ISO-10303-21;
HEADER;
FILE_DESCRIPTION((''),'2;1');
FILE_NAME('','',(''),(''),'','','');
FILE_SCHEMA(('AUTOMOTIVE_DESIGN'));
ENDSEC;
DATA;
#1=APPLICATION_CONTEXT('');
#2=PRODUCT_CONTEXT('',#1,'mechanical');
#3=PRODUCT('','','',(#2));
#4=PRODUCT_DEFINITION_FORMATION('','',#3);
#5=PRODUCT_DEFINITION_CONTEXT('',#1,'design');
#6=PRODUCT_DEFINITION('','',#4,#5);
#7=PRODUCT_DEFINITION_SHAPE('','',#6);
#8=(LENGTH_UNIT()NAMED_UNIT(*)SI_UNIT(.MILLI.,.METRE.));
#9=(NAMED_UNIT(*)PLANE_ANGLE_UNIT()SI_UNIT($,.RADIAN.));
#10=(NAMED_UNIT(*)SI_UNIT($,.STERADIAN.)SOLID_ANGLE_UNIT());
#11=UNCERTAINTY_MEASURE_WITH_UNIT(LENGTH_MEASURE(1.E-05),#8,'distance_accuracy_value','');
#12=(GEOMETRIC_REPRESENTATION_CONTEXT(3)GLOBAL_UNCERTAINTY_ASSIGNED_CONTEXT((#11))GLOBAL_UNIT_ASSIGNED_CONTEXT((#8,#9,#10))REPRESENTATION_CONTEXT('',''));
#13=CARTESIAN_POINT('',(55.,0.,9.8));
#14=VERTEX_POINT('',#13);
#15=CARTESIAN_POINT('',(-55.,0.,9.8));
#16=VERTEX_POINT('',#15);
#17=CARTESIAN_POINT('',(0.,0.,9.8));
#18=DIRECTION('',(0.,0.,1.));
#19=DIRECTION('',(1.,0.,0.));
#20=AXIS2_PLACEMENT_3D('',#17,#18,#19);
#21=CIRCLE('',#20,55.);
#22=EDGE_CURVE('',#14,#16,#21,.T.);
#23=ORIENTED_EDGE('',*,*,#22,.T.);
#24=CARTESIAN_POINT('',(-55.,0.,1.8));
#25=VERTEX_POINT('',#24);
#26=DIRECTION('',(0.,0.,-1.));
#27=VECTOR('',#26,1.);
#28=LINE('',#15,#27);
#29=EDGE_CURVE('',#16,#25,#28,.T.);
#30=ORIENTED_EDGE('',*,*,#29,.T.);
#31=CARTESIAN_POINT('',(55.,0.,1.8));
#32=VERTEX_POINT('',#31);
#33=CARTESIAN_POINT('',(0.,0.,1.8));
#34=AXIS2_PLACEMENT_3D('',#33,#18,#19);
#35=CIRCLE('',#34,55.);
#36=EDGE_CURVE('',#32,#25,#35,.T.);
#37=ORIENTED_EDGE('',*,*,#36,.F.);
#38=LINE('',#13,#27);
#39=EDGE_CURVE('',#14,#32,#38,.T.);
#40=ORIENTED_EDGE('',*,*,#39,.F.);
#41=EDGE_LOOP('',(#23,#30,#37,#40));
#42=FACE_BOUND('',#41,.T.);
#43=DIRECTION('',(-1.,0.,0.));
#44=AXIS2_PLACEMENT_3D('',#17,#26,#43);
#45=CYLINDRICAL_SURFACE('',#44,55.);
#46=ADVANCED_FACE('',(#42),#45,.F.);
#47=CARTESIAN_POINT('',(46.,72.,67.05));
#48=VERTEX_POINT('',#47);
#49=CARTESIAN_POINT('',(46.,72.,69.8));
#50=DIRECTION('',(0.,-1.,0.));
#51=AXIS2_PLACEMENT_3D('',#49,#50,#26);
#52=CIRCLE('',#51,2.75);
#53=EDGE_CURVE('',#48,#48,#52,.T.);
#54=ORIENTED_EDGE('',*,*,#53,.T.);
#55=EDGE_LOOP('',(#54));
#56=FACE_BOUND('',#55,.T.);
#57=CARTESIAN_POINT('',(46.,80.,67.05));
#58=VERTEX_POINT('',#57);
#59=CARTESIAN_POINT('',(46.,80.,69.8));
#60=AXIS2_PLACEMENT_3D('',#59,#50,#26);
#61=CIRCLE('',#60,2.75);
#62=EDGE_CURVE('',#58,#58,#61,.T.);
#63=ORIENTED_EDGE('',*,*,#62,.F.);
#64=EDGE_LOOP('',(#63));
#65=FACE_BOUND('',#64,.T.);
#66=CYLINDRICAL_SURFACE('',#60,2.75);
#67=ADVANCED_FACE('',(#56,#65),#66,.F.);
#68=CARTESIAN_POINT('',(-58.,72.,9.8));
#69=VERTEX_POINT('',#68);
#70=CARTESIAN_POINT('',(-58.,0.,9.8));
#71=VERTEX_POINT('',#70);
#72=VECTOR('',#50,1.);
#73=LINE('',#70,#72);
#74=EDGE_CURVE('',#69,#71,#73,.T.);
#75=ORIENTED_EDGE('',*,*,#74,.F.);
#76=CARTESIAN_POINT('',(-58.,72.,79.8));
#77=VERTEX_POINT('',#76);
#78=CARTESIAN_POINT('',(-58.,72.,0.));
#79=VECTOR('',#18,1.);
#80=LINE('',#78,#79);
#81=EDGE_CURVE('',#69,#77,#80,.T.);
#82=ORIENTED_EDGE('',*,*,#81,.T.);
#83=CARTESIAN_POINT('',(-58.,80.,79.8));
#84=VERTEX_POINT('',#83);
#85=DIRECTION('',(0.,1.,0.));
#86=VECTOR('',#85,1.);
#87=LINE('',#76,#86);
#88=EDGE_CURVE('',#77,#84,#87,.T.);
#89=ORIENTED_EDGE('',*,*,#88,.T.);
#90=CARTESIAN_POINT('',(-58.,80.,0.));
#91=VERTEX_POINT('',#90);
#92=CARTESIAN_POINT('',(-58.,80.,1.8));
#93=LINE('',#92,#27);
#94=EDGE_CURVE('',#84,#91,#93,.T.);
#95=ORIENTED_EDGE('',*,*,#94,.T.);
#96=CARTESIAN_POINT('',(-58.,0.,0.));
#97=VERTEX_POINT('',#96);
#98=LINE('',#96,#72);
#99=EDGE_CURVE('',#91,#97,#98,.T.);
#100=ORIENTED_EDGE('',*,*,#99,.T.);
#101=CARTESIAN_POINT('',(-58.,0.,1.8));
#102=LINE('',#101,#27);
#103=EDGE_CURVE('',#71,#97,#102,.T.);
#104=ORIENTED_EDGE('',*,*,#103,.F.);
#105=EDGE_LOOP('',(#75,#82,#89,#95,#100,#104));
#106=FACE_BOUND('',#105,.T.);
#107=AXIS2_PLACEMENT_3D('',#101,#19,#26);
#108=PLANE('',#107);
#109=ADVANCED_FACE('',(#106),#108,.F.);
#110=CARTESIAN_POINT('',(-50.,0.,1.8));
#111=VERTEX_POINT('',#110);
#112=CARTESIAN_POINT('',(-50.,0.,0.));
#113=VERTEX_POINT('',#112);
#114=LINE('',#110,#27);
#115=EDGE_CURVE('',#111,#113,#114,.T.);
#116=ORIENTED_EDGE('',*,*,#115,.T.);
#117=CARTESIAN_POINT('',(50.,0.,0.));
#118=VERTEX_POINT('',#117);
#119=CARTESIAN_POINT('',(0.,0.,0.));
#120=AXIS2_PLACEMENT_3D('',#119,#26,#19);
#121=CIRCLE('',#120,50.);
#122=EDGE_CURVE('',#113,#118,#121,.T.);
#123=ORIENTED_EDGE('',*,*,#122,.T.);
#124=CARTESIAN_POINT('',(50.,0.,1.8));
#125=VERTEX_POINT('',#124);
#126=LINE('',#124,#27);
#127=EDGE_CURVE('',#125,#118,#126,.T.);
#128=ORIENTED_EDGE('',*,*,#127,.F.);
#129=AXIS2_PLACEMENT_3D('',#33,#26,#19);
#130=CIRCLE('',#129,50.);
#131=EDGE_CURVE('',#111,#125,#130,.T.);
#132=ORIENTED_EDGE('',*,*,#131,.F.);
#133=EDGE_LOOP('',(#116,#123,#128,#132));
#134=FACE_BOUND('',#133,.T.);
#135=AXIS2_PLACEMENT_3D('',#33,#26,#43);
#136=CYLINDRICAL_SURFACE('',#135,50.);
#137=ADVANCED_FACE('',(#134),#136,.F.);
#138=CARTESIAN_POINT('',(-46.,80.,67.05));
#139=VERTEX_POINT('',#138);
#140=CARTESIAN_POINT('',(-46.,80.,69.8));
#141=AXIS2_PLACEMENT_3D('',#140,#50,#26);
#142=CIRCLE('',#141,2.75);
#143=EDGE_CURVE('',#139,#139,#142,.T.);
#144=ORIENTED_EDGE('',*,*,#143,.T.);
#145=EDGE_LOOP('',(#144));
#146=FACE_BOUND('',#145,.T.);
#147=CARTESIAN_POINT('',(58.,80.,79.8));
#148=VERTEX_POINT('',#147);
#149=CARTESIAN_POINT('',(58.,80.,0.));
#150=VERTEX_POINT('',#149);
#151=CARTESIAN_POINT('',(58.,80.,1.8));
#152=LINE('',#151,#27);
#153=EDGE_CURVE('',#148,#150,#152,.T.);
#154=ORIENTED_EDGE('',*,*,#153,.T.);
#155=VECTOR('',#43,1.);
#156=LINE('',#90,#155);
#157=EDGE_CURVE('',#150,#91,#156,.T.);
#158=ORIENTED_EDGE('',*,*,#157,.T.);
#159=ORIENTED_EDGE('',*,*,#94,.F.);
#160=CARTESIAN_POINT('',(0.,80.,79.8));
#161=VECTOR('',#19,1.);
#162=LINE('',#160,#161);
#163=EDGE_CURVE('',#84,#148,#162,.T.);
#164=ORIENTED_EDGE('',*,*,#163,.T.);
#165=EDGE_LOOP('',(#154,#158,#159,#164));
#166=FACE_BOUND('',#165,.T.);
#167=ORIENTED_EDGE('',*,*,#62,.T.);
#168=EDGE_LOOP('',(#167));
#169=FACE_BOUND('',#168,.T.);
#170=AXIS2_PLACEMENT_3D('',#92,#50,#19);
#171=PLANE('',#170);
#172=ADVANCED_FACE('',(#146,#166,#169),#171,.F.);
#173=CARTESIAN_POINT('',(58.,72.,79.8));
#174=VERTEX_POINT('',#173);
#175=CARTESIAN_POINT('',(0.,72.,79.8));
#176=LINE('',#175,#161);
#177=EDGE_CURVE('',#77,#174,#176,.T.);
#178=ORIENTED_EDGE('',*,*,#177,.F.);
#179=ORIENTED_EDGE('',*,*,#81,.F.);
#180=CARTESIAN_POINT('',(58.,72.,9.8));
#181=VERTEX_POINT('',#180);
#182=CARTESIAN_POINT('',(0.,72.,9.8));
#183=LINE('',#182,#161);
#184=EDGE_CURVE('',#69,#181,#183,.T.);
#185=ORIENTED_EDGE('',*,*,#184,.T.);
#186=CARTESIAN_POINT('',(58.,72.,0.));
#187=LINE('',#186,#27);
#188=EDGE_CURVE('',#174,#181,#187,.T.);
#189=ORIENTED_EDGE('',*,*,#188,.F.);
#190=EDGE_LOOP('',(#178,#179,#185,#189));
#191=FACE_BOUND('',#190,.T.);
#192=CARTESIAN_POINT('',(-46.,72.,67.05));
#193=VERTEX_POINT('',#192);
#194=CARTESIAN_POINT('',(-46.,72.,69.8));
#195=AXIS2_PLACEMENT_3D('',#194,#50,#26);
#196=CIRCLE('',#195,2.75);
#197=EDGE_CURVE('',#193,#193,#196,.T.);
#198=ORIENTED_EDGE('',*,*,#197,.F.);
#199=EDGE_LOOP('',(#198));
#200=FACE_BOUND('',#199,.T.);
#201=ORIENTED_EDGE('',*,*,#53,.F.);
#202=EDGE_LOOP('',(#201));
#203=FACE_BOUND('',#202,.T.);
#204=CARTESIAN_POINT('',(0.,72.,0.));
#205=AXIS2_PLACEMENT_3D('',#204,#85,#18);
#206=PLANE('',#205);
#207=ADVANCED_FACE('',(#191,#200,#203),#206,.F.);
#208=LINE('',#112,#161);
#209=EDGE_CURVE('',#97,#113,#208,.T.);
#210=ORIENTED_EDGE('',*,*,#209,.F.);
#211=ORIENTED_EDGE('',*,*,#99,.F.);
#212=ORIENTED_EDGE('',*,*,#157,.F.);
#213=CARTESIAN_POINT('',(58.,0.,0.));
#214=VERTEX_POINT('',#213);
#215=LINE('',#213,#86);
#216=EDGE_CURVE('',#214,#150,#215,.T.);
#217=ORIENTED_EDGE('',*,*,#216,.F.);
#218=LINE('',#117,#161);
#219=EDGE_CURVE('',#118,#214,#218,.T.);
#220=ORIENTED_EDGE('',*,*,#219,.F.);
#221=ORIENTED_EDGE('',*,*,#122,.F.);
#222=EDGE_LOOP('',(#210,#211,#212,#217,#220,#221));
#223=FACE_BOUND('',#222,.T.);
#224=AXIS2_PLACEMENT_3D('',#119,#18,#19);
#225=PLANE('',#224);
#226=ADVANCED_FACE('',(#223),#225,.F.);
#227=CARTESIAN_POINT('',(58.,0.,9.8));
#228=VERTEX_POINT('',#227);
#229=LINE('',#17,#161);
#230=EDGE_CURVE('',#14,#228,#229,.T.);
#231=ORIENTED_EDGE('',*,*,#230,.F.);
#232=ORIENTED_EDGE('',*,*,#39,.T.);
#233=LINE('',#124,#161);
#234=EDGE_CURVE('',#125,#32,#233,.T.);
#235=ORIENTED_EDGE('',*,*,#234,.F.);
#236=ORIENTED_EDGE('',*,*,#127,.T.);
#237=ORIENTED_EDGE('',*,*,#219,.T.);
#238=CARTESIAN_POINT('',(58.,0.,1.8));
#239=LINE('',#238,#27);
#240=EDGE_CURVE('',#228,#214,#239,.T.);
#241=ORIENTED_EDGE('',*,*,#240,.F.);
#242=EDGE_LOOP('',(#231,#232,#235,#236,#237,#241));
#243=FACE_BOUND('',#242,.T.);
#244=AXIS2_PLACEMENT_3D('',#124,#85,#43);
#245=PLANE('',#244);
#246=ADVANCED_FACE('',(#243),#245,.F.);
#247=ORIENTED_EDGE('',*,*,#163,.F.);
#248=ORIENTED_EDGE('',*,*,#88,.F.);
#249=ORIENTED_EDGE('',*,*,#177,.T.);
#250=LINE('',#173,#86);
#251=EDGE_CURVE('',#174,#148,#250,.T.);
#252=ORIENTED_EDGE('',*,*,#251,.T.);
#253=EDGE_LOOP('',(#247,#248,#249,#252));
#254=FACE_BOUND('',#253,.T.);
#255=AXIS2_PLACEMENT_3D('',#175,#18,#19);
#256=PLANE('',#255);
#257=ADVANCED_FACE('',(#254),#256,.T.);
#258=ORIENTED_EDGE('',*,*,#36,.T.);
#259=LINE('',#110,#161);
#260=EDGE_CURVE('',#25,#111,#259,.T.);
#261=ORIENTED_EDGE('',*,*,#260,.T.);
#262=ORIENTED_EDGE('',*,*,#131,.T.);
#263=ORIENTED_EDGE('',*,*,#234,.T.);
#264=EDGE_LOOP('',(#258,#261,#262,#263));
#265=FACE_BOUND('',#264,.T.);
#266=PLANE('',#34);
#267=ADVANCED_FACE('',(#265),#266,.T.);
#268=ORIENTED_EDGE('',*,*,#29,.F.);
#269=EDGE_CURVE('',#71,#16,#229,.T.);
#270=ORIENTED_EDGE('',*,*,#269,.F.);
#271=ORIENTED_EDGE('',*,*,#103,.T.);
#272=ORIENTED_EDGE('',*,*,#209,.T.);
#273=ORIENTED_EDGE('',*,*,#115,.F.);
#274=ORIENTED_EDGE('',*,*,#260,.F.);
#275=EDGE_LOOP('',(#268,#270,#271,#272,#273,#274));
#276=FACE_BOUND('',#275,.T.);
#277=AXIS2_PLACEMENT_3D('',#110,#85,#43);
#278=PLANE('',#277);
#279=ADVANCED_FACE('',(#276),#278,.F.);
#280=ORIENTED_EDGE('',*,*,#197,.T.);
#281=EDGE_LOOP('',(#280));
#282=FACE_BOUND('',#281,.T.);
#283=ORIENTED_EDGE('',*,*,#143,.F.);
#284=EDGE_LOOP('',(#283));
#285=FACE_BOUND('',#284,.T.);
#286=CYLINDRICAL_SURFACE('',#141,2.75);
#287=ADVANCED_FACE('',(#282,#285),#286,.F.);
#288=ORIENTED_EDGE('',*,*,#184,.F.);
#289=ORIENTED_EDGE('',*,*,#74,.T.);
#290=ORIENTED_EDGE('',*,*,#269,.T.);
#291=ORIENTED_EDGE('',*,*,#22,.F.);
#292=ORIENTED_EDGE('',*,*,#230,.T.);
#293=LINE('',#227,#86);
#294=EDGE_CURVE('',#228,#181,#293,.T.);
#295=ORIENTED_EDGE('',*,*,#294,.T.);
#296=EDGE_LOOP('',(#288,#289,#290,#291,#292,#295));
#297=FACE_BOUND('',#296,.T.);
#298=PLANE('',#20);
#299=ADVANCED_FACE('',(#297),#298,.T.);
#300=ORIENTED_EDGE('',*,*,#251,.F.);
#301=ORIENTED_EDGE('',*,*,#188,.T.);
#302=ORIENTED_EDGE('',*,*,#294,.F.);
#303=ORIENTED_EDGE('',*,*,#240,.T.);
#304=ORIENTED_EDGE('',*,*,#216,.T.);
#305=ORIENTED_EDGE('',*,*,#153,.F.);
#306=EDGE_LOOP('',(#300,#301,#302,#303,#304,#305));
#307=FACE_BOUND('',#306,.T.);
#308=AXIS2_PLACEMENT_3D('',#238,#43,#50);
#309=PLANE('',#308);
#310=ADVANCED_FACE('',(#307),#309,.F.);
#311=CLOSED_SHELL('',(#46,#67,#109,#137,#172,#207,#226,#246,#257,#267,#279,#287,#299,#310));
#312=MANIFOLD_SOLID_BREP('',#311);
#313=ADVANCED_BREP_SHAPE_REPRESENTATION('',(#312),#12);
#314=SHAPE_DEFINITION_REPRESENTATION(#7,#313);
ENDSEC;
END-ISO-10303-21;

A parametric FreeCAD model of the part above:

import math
import FreeCAD as App
import Part
import Sketcher


def add_polygon(sketch, points):
    """Adds a closed chain of lines whose ends are joined by coincident constraints."""
    first, n = sketch.GeometryCount, len(points)
    for a, b in zip(points, points[1:] + points[:1]):
        sketch.addGeometry(Part.LineSegment(App.Vector(*a, 0), App.Vector(*b, 0)), False)
    for i in range(n):
        sketch.addConstraint(Sketcher.Constraint("Coincident", first + i, 2, first + (i + 1) % n, 1))

doc = App.newDocument("Part")
body = doc.addObject("PartDesign::Body", "Body")

sketch1 = body.newObject("Sketcher::SketchObject", "Sketch")
sketch1.AttachmentSupport = (doc.getObject("XY_Plane"), [""])
sketch1.MapMode = "FlatFace"
sketch1.addGeometry([
    Part.LineSegment(App.Vector(50, 0, 0), App.Vector(58, 0, 0)),
    Part.LineSegment(App.Vector(58, 0, 0), App.Vector(58, 80, 0)),
    Part.LineSegment(App.Vector(58, 80, 0), App.Vector(-58, 80, 0)),
    Part.LineSegment(App.Vector(-58, 80, 0), App.Vector(-58, 0, 0)),
    Part.LineSegment(App.Vector(-58, 0, 0), App.Vector(-50, 0, 0)),
    Part.ArcOfCircle(Part.Circle(App.Vector(0, 0, 0), App.Vector(0, 0, 1), 50), math.radians(0), math.radians(180)),
], False)
sketch1.addConstraint([
    Sketcher.Constraint("Coincident", 0, 2, 1, 1),
    Sketcher.Constraint("Coincident", 1, 2, 2, 1),
    Sketcher.Constraint("Coincident", 2, 2, 3, 1),
    Sketcher.Constraint("Coincident", 3, 2, 4, 1),
    Sketcher.Constraint("Coincident", 4, 2, 5, 2),
    Sketcher.Constraint("Coincident", 5, 1, 0, 1),
    Sketcher.Constraint("Horizontal", 0),
    Sketcher.Constraint("Vertical", 1),
    Sketcher.Constraint("Horizontal", 2),
    Sketcher.Constraint("Vertical", 3),
    Sketcher.Constraint("Horizontal", 4),
    Sketcher.Constraint("Coincident", 5, 3, -1, 1),
    Sketcher.Constraint("Symmetric", 0, 2, 3, 2, -1, 1),
    Sketcher.Constraint("PointOnObject", 0, 2, -1),
    Sketcher.Constraint("Radius", 5, 50.0),
    Sketcher.Constraint("DistanceX", 0, 1, 0, 2, 8.0),
    Sketcher.Constraint("DistanceY", 1, 1, 1, 2, 80.0),
])
pad1 = body.newObject("PartDesign::Pad", "Pad")
pad1.Profile = sketch1
pad1.Length = 1.8

sketch2 = body.newObject("Sketcher::SketchObject", "Sketch001")
sketch2.AttachmentSupport = (doc.getObject("XY_Plane"), [""])
sketch2.MapMode = "FlatFace"
sketch2.AttachmentOffset = App.Placement(App.Vector(0, 0, 1.8), App.Rotation())
sketch2.addGeometry([
    Part.LineSegment(App.Vector(-58, 0, 0), App.Vector(-55, 0, 0)),
    Part.ArcOfCircle(Part.Circle(App.Vector(0, 0, 0), App.Vector(0, 0, 1), 55), math.radians(0), math.radians(180)),
    Part.LineSegment(App.Vector(55, 0, 0), App.Vector(58, 0, 0)),
    Part.LineSegment(App.Vector(58, 0, 0), App.Vector(58, 80, 0)),
    Part.LineSegment(App.Vector(58, 80, 0), App.Vector(-58, 80, 0)),
    Part.LineSegment(App.Vector(-58, 80, 0), App.Vector(-58, 0, 0)),
], False)
sketch2.addConstraint([
    Sketcher.Constraint("Coincident", 0, 2, 1, 2),
    Sketcher.Constraint("Coincident", 1, 1, 2, 1),
    Sketcher.Constraint("Coincident", 2, 2, 3, 1),
    Sketcher.Constraint("Coincident", 3, 2, 4, 1),
    Sketcher.Constraint("Coincident", 4, 2, 5, 1),
    Sketcher.Constraint("Coincident", 5, 2, 0, 1),
    Sketcher.Constraint("Horizontal", 0),
    Sketcher.Constraint("Horizontal", 2),
    Sketcher.Constraint("Vertical", 3),
    Sketcher.Constraint("Horizontal", 4),
    Sketcher.Constraint("Vertical", 5),
    Sketcher.Constraint("Coincident", 1, 3, -1, 1),
    Sketcher.Constraint("Symmetric", 2, 2, 5, 2, -1, 1),
    Sketcher.Constraint("PointOnObject", 0, 2, -1),
    Sketcher.Constraint("Radius", 1, 55.0),
    Sketcher.Constraint("DistanceX", 0, 1, 0, 2, 3.0),
    Sketcher.Constraint("DistanceY", 3, 1, 3, 2, 80.0),
])
pad2 = body.newObject("PartDesign::Pad", "Pad001")
pad2.Profile = sketch2
pad2.Length = 8

sketch3 = body.newObject("Sketcher::SketchObject", "Sketch002")
sketch3.AttachmentSupport = (doc.getObject("XZ_Plane"), [""])
sketch3.MapMode = "FlatFace"
sketch3.AttachmentOffset = App.Placement(App.Vector(0, 0, -80), App.Rotation())
add_polygon(sketch3, [(-58, 9.8), (-58, 79.8), (58, 79.8), (58, 9.8)])
sketch3.addConstraint([
    Sketcher.Constraint("Vertical", 0),
    Sketcher.Constraint("Horizontal", 1),
    Sketcher.Constraint("Vertical", 2),
    Sketcher.Constraint("Horizontal", 3),
    Sketcher.Constraint("DistanceX", 1, 1, 1, 2, 116.0),
    Sketcher.Constraint("DistanceY", 0, 1, 0, 2, 70.0),
    Sketcher.Constraint("DistanceX", 0, 2, -1, 1, 58.0),
    Sketcher.Constraint("DistanceY", -1, 1, 0, 2, 79.8),
])
pad3 = body.newObject("PartDesign::Pad", "Pad002")
pad3.Profile = sketch3
pad3.Length = 8

sketch4 = body.newObject("Sketcher::SketchObject", "Sketch003")
sketch4.AttachmentSupport = (doc.getObject("XZ_Plane"), [""])
sketch4.MapMode = "FlatFace"
sketch4.AttachmentOffset = App.Placement(App.Vector(0, 0, -72), App.Rotation())
sketch4.addGeometry([
    Part.Circle(App.Vector(-46, 69.8, 0), App.Vector(0, 0, 1), 2.75),
    Part.Circle(App.Vector(46, 69.8, 0), App.Vector(0, 0, 1), 2.75),
], False)
sketch4.addConstraint([
    Sketcher.Constraint("Equal", 0, 1),
    Sketcher.Constraint("Symmetric", 0, 3, 1, 3, -2),
    Sketcher.Constraint("Diameter", 0, 5.5),
    Sketcher.Constraint("DistanceX", 0, 3, -1, 1, 46.0),
    Sketcher.Constraint("DistanceY", -1, 1, 0, 3, 69.8),
])
pocket1 = body.newObject("PartDesign::Pocket", "Pocket")
pocket1.Profile = sketch4
pocket1.Type = "ThroughAll"

doc.recompute()
